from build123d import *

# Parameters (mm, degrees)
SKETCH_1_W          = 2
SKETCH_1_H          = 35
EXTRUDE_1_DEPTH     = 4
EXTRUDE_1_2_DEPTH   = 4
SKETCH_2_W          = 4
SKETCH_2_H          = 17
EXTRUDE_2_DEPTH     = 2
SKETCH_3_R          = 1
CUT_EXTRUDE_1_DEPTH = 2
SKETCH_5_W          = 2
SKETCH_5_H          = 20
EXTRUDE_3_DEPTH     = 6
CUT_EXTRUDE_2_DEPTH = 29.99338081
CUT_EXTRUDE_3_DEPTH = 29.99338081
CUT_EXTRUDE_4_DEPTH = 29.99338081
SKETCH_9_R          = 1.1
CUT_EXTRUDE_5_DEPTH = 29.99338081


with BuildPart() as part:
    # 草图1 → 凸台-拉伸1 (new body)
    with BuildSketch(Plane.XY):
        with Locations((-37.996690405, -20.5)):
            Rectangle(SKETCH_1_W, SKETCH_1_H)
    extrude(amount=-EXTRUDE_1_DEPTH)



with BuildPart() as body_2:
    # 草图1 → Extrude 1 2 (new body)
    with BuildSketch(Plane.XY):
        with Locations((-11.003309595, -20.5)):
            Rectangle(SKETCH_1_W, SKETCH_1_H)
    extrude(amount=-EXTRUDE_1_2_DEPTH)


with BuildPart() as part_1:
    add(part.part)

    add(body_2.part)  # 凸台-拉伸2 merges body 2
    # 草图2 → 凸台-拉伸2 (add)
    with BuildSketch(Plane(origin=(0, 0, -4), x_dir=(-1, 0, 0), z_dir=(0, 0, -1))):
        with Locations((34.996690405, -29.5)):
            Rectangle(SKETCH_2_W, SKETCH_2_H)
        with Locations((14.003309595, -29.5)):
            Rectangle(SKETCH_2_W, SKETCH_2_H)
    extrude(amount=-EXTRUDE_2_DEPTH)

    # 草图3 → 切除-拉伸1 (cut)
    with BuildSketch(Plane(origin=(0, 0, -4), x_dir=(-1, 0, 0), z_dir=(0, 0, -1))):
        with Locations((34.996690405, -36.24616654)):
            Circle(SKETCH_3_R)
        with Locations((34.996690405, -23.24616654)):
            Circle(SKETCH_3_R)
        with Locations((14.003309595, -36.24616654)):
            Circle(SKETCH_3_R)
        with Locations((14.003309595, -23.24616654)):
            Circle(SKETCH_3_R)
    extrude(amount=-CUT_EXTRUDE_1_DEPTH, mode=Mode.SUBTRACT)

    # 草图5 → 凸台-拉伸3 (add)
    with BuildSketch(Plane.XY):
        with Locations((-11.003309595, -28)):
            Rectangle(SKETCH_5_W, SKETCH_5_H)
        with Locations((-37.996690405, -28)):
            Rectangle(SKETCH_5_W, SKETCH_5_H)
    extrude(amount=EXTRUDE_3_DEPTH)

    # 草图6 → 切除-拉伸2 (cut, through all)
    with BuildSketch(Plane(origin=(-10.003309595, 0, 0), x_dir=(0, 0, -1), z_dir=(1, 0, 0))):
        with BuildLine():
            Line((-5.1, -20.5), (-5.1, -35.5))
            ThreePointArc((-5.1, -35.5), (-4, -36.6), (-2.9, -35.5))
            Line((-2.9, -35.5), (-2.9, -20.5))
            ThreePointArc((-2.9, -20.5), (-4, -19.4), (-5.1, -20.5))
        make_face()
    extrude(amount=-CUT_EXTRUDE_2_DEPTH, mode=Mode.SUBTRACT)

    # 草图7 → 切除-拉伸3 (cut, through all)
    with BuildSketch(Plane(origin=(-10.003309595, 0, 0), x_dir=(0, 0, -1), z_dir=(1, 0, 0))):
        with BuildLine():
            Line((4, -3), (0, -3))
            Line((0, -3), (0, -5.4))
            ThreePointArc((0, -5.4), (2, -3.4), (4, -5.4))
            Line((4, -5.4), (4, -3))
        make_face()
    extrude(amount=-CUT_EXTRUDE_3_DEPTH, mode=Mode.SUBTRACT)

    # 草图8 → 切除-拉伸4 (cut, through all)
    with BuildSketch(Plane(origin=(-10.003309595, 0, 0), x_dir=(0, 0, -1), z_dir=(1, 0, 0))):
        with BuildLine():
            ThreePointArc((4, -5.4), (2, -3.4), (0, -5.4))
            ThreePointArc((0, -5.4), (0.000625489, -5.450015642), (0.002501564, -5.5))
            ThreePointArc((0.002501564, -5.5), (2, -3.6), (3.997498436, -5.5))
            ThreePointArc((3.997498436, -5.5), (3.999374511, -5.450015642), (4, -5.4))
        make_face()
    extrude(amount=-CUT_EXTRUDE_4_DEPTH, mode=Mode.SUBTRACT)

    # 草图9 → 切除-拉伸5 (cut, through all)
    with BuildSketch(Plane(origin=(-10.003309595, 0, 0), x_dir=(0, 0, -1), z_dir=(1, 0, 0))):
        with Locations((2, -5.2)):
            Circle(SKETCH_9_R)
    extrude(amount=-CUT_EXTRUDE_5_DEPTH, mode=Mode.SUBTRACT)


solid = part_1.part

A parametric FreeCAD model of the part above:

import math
import FreeCAD as App
import Part
import Sketcher

doc = App.newDocument("Part")
body = doc.addObject("PartDesign::Body", "Body")

# Sketch on XY plane
sketch1 = body.newObject("Sketcher::SketchObject", "Sketch")
sketch1.AttachmentSupport = (doc.getObject("XY_Plane"), [""])
sketch1.MapMode = "FlatFace"
sketch1.addGeometry([
    Part.LineSegment(App.Vector(-38.99669, -3, 0), App.Vector(-38.99669, -38, 0)),
    Part.LineSegment(App.Vector(-38.99669, -38, 0), App.Vector(-36.99669, -38, 0)),
    Part.LineSegment(App.Vector(-36.99669, -38, 0), App.Vector(-36.99669, -3, 0)),
    Part.LineSegment(App.Vector(-36.99669, -3, 0), App.Vector(-38.99669, -3, 0)),
], False)
sketch1.addConstraint([
    Sketcher.Constraint("Coincident", 0, 2, 1, 1),
    Sketcher.Constraint("Coincident", 1, 2, 2, 1),
    Sketcher.Constraint("Coincident", 2, 2, 3, 1),
    Sketcher.Constraint("Coincident", 3, 2, 0, 1),
    Sketcher.Constraint("Vertical", 0),
    Sketcher.Constraint("Horizontal", 1),
    Sketcher.Constraint("Vertical", 2),
    Sketcher.Constraint("Horizontal", 3),
    Sketcher.Constraint("DistanceX", 1, 1, 1, 2, 2.0),
    Sketcher.Constraint("DistanceY", 0, 2, 0, 1, 35.0),
    Sketcher.Constraint("DistanceY", 0, 2, -1, 1, 38.0),
    Sketcher.Constraint("DistanceX", 0, 2, -1, 1, 38.99669),
])
pad1 = body.newObject("PartDesign::Pad", "Pad")
pad1.Profile = sketch1
pad1.Length = 4
pad1.Reversed = True
body2 = doc.addObject("PartDesign::Body", "Body001")

# Sketch on XY plane
sketch2 = body2.newObject("Sketcher::SketchObject", "Sketch001")
sketch2.AttachmentSupport = (doc.getObject("XY_Plane001"), [""])
sketch2.MapMode = "FlatFace"
sketch2.addGeometry([
    Part.LineSegment(App.Vector(-12.00331, -3, 0), App.Vector(-12.00331, -38, 0)),
    Part.LineSegment(App.Vector(-12.00331, -38, 0), App.Vector(-10.00331, -38, 0)),
    Part.LineSegment(App.Vector(-10.00331, -38, 0), App.Vector(-10.00331, -3, 0)),
    Part.LineSegment(App.Vector(-10.00331, -3, 0), App.Vector(-12.00331, -3, 0)),
], False)
sketch2.addConstraint([
    Sketcher.Constraint("Coincident", 0, 2, 1, 1),
    Sketcher.Constraint("Coincident", 1, 2, 2, 1),
    Sketcher.Constraint("Coincident", 2, 2, 3, 1),
    Sketcher.Constraint("Coincident", 3, 2, 0, 1),
    Sketcher.Constraint("Vertical", 0),
    Sketcher.Constraint("Horizontal", 1),
    Sketcher.Constraint("Vertical", 2),
    Sketcher.Constraint("Horizontal", 3),
    Sketcher.Constraint("DistanceX", 1, 1, 1, 2, 2.0),
    Sketcher.Constraint("DistanceY", 0, 2, 0, 1, 35.0),
    Sketcher.Constraint("DistanceY", 0, 2, -1, 1, 38.0),
    Sketcher.Constraint("DistanceX", 0, 2, -1, 1, 12.00331),
])
pad2 = body2.newObject("PartDesign::Pad", "Pad001")
pad2.Profile = sketch2
pad2.Length = 4
pad2.Reversed = True
body.AllowCompound = True
doc.recompute()

boolean = body.newObject("PartDesign::Boolean", "Boolean")
boolean.Type = "Fuse"
boolean.addObjects([body2])

# Sketch on XY plane
sketch3 = body.newObject("Sketcher::SketchObject", "Sketch002")
sketch3.AttachmentSupport = (doc.getObject("XY_Plane"), [""])
sketch3.MapMode = "FlatFace"
sketch3.AttachmentOffset = App.Placement(App.Vector(0, 0, -4), App.Rotation())
sketch3.addGeometry([
    Part.LineSegment(App.Vector(-32.99669, -21, 0), App.Vector(-32.99669, -38, 0)),  # 0
    Part.LineSegment(App.Vector(-32.99669, -38, 0), App.Vector(-36.99669, -38, 0)),  # 1
    Part.LineSegment(App.Vector(-36.99669, -38, 0), App.Vector(-36.99669, -21, 0)),  # 2
    Part.LineSegment(App.Vector(-36.99669, -21, 0), App.Vector(-32.99669, -21, 0)),  # 3
    Part.LineSegment(App.Vector(-12.00331, -21, 0), App.Vector(-12.00331, -38, 0)),  # 4
    Part.LineSegment(App.Vector(-12.00331, -38, 0), App.Vector(-16.00331, -38, 0)),  # 5
    Part.LineSegment(App.Vector(-16.00331, -38, 0), App.Vector(-16.00331, -21, 0)),  # 6
    Part.LineSegment(App.Vector(-16.00331, -21, 0), App.Vector(-12.00331, -21, 0)),  # 7
], False)
sketch3.addConstraint([
    Sketcher.Constraint("Coincident", 0, 2, 1, 1),
    Sketcher.Constraint("Coincident", 1, 2, 2, 1),
    Sketcher.Constraint("Coincident", 2, 2, 3, 1),
    Sketcher.Constraint("Coincident", 3, 2, 0, 1),
    Sketcher.Constraint("Coincident", 4, 2, 5, 1),
    Sketcher.Constraint("Coincident", 5, 2, 6, 1),
    Sketcher.Constraint("Coincident", 6, 2, 7, 1),
    Sketcher.Constraint("Coincident", 7, 2, 4, 1),
    Sketcher.Constraint("Vertical", 0),
    Sketcher.Constraint("Horizontal", 1),
    Sketcher.Constraint("Vertical", 2),
    Sketcher.Constraint("Horizontal", 3),
    Sketcher.Constraint("Vertical", 4),
    Sketcher.Constraint("Horizontal", 5),
    Sketcher.Constraint("Vertical", 6),
    Sketcher.Constraint("Horizontal", 7),
    Sketcher.Constraint("Horizontal", 1, 2, 4, 2),
    Sketcher.Constraint("Horizontal", 3, 2, 6, 2),
    Sketcher.Constraint("Equal", 3, 5),
    Sketcher.Constraint("DistanceX", 1, 2, 1, 1, 4.0),
    Sketcher.Constraint("DistanceY", 0, 2, 0, 1, 17.0),
    Sketcher.Constraint("DistanceY", 0, 2, -1, 1, 38.0),
    Sketcher.Constraint("DistanceX", 0, 2, -1, 1, 32.99669),
    Sketcher.Constraint("DistanceX", 4, 2, -1, 1, 12.00331),
])
pad3 = body.newObject("PartDesign::Pad", "Pad002")
pad3.Profile = sketch3
pad3.Length = 2

# Sketch on XY plane
sketch4 = body.newObject("Sketcher::SketchObject", "Sketch003")
sketch4.AttachmentSupport = (doc.getObject("XY_Plane"), [""])
sketch4.MapMode = "FlatFace"
sketch4.AttachmentOffset = App.Placement(App.Vector(0, 0, -4), App.Rotation())
sketch4.addGeometry([
    Part.Circle(App.Vector(-34.99669, -36.246167, 0), App.Vector(0, 0, 1), 1),
    Part.Circle(App.Vector(-34.99669, -23.246167, 0), App.Vector(0, 0, 1), 1),
    Part.Circle(App.Vector(-14.00331, -36.246167, 0), App.Vector(0, 0, 1), 1),
    Part.Circle(App.Vector(-14.00331, -23.246167, 0), App.Vector(0, 0, 1), 1),
], False)
sketch4.addConstraint([
    Sketcher.Constraint("Equal", 0, 1),
    Sketcher.Constraint("Equal", 1, 2),
    Sketcher.Constraint("Equal", 2, 3),
    Sketcher.Constraint("Horizontal", 0, 3, 2, 3),
    Sketcher.Constraint("Horizontal", 1, 3, 3, 3),
    Sketcher.Constraint("Vertical", 0, 3, 1, 3),
    Sketcher.Constraint("Vertical", 2, 3, 3, 3),
    Sketcher.Constraint("Diameter", 0, 2.0),
    Sketcher.Constraint("DistanceY", 0, 3, 1, 3, 13.0),
    Sketcher.Constraint("DistanceX", 0, 3, -1, 1, 34.99669),
    Sketcher.Constraint("DistanceX", 2, 3, -1, 1, 14.00331),
    Sketcher.Constraint("DistanceY", 0, 3, -1, 1, 36.246167),
])
pocket1 = body.newObject("PartDesign::Pocket", "Pocket")
pocket1.Profile = sketch4
pocket1.Length = 2
pocket1.Reversed = True

# Sketch on XY plane
sketch5 = body.newObject("Sketcher::SketchObject", "Sketch004")
sketch5.AttachmentSupport = (doc.getObject("XY_Plane"), [""])
sketch5.MapMode = "FlatFace"
sketch5.addGeometry([
    Part.LineSegment(App.Vector(-12.00331, -18, 0), App.Vector(-12.00331, -38, 0)),  # 0
    Part.LineSegment(App.Vector(-12.00331, -38, 0), App.Vector(-10.00331, -38, 0)),  # 1
    Part.LineSegment(App.Vector(-10.00331, -38, 0), App.Vector(-10.00331, -18, 0)),  # 2
    Part.LineSegment(App.Vector(-10.00331, -18, 0), App.Vector(-12.00331, -18, 0)),  # 3
    Part.LineSegment(App.Vector(-38.99669, -18, 0), App.Vector(-38.99669, -38, 0)),  # 4
    Part.LineSegment(App.Vector(-38.99669, -38, 0), App.Vector(-36.99669, -38, 0)),  # 5
    Part.LineSegment(App.Vector(-36.99669, -38, 0), App.Vector(-36.99669, -18, 0)),  # 6
    Part.LineSegment(App.Vector(-36.99669, -18, 0), App.Vector(-38.99669, -18, 0)),  # 7
], False)
sketch5.addConstraint([
    Sketcher.Constraint("Coincident", 0, 2, 1, 1),
    Sketcher.Constraint("Coincident", 1, 2, 2, 1),
    Sketcher.Constraint("Coincident", 2, 2, 3, 1),
    Sketcher.Constraint("Coincident", 3, 2, 0, 1),
    Sketcher.Constraint("Coincident", 4, 2, 5, 1),
    Sketcher.Constraint("Coincident", 5, 2, 6, 1),
    Sketcher.Constraint("Coincident", 6, 2, 7, 1),
    Sketcher.Constraint("Coincident", 7, 2, 4, 1),
    Sketcher.Constraint("Vertical", 0),
    Sketcher.Constraint("Horizontal", 1),
    Sketcher.Constraint("Vertical", 2),
    Sketcher.Constraint("Horizontal", 3),
    Sketcher.Constraint("Vertical", 4),
    Sketcher.Constraint("Horizontal", 5),
    Sketcher.Constraint("Vertical", 6),
    Sketcher.Constraint("Horizontal", 7),
    Sketcher.Constraint("Horizontal", 1, 2, 4, 2),
    Sketcher.Constraint("Horizontal", 3, 2, 6, 2),
    Sketcher.Constraint("Equal", 3, 5),
    Sketcher.Constraint("DistanceX", 1, 1, 1, 2, 2.0),
    Sketcher.Constraint("DistanceY", 0, 2, 0, 1, 20.0),
    Sketcher.Constraint("DistanceY", 0, 2, -1, 1, 38.0),
    Sketcher.Constraint("DistanceX", 0, 2, -1, 1, 12.00331),
    Sketcher.Constraint("DistanceX", 4, 2, -1, 1, 38.99669),
])
pad4 = body.newObject("PartDesign::Pad", "Pad003")
pad4.Profile = sketch5
pad4.Length = 6

# Sketch on YZ plane
sketch6 = body.newObject("Sketcher::SketchObject", "Sketch005")
sketch6.AttachmentSupport = (doc.getObject("YZ_Plane"), [""])
sketch6.MapMode = "FlatFace"
sketch6.AttachmentOffset = App.Placement(App.Vector(0, 0, -10.00331), App.Rotation())
sketch6.addGeometry([
    Part.LineSegment(App.Vector(-20.5, 5.1, 0), App.Vector(-35.5, 5.1, 0)),
    Part.ArcOfCircle(Part.Circle(App.Vector(-35.5, 4, 0), App.Vector(0, 0, 1), 1.1), math.radians(90), math.radians(270)),
    Part.LineSegment(App.Vector(-35.5, 2.9, 0), App.Vector(-20.5, 2.9, 0)),
    Part.ArcOfCircle(Part.Circle(App.Vector(-20.5, 4, 0), App.Vector(0, 0, 1), 1.1), math.radians(-90), math.radians(90)),
], False)
sketch6.addConstraint([
    Sketcher.Constraint("Tangent", 0, 2, 1, 1),
    Sketcher.Constraint("Tangent", 1, 2, 2, 1),
    Sketcher.Constraint("Tangent", 2, 2, 3, 1),
    Sketcher.Constraint("Tangent", 3, 2, 0, 1),
    Sketcher.Constraint("Horizontal", 0),
    Sketcher.Constraint("Horizontal", 2),
    Sketcher.Constraint("Radius", 1, 1.1),
    Sketcher.Constraint("DistanceX", 0, 2, 0, 1, 15.0),
    Sketcher.Constraint("DistanceY", -1, 1, 1, 3, 4.0),
    Sketcher.Constraint("DistanceX", 1, 3, -1, 1, 35.5),
])
pocket2 = body.newObject("PartDesign::Pocket", "Pocket001")
pocket2.Profile = sketch6
pocket2.Type = "ThroughAll"

# Sketch on YZ plane
sketch7 = body.newObject("Sketcher::SketchObject", "Sketch006")
sketch7.AttachmentSupport = (doc.getObject("YZ_Plane"), [""])
sketch7.MapMode = "FlatFace"
sketch7.AttachmentOffset = App.Placement(App.Vector(0, 0, -10.00331), App.Rotation())
sketch7.addGeometry([
    Part.LineSegment(App.Vector(-3, -4, 0), App.Vector(-3, 0, 0)),
    Part.LineSegment(App.Vector(-3, 0, 0), App.Vector(-5.4, 0, 0)),
    Part.ArcOfCircle(Part.Circle(App.Vector(-5.4, -2, 0), App.Vector(0, 0, 1), 2), math.radians(-90), math.radians(90)),
    Part.LineSegment(App.Vector(-5.4, -4, 0), App.Vector(-3, -4, 0)),
], False)
sketch7.addConstraint([
    Sketcher.Constraint("Coincident", 0, 2, 1, 1),
    Sketcher.Constraint("Tangent", 1, 2, 2, 2),
    Sketcher.Constraint("Tangent", 2, 1, 3, 1),
    Sketcher.Constraint("Coincident", 3, 2, 0, 1),
    Sketcher.Constraint("Vertical", 0),
    Sketcher.Constraint("Horizontal", 1),
    Sketcher.Constraint("Horizontal", 3),
    Sketcher.Constraint("PointOnObject", 0, 2, -1),
    Sketcher.Constraint("Radius", 2, 2.0),
    Sketcher.Constraint("DistanceX", 1, 2, 1, 1, 2.4),
    Sketcher.Constraint("DistanceX", 0, 2, -1, 1, 3.0),
])
pocket3 = body.newObject("PartDesign::Pocket", "Pocket002")
pocket3.Profile = sketch7
pocket3.Type = "ThroughAll"

# Sketch on YZ plane
sketch8 = body.newObject("Sketcher::SketchObject", "Sketch007")
sketch8.AttachmentSupport = (doc.getObject("YZ_Plane"), [""])
sketch8.MapMode = "FlatFace"
sketch8.AttachmentOffset = App.Placement(App.Vector(0, 0, -10.00331), App.Rotation())
sketch8.addGeometry([
    Part.ArcOfCircle(Part.Circle(App.Vector(-5.4, -2, 0), App.Vector(0, 0, 1), 2), math.radians(-90), math.radians(90)),
    Part.ArcOfCircle(Part.Circle(App.Vector(-5.4, -2.000001, 0), App.Vector(0, 0, 1), 2.000001), math.radians(90), math.radians(92.865983)),
    Part.ArcOfCircle(Part.Circle(App.Vector(-5.6, -2, 0), App.Vector(0, 0, 1), 2), math.radians(-87.134016), math.radians(87.134016)),
    Part.ArcOfCircle(Part.Circle(App.Vector(-5.4, -1.999999, 0), App.Vector(0, 0, 1), 2.000001), math.radians(-92.865983), math.radians(-90)),
], False)
sketch8.addConstraint([
    Sketcher.Constraint("Tangent", 0, 2, 1, 1),
    Sketcher.Constraint("Coincident", 1, 2, 2, 2),
    Sketcher.Constraint("Coincident", 2, 1, 3, 1),
    Sketcher.Constraint("Tangent", 3, 2, 0, 1),
    Sketcher.Constraint("Equal", 0, 1),
    Sketcher.Constraint("Equal", 1, 2),
    Sketcher.Constraint("Equal", 2, 3),
    Sketcher.Constraint("PointOnObject", 0, 2, -1),
    Sketcher.Constraint("Horizontal", 1, 3, 2, 3),
    Sketcher.Constraint("Vertical", 3, 3, 0, 2),
    Sketcher.Constraint("Vertical", 0, 2, 3, 2),
    Sketcher.Constraint("Radius", 0, 2.0),
    Sketcher.Constraint("DistanceX", 0, 3, -1, 1, 5.4),
    Sketcher.Constraint("DistanceX", 2, 3, -1, 1, 5.6),
])
pocket4 = body.newObject("PartDesign::Pocket", "Pocket003")
pocket4.Profile = sketch8
pocket4.Type = "ThroughAll"

# Sketch on YZ plane
sketch9 = body.newObject("Sketcher::SketchObject", "Sketch008")
sketch9.AttachmentSupport = (doc.getObject("YZ_Plane"), [""])
sketch9.MapMode = "FlatFace"
sketch9.AttachmentOffset = App.Placement(App.Vector(0, 0, -10.00331), App.Rotation())
sketch9.addGeometry(Part.Circle(App.Vector(-5.2, -2, 0), App.Vector(0, 0, 1), 1.1), False)
sketch9.addConstraint([
    Sketcher.Constraint("Diameter", 0, 2.2),
    Sketcher.Constraint("DistanceY", 0, 3, -1, 1, 2.0),
    Sketcher.Constraint("DistanceX", 0, 3, -1, 1, 5.2),
])
pocket5 = body.newObject("PartDesign::Pocket", "Pocket004")
pocket5.Profile = sketch9
pocket5.Type = "ThroughAll"

doc.recompute()
